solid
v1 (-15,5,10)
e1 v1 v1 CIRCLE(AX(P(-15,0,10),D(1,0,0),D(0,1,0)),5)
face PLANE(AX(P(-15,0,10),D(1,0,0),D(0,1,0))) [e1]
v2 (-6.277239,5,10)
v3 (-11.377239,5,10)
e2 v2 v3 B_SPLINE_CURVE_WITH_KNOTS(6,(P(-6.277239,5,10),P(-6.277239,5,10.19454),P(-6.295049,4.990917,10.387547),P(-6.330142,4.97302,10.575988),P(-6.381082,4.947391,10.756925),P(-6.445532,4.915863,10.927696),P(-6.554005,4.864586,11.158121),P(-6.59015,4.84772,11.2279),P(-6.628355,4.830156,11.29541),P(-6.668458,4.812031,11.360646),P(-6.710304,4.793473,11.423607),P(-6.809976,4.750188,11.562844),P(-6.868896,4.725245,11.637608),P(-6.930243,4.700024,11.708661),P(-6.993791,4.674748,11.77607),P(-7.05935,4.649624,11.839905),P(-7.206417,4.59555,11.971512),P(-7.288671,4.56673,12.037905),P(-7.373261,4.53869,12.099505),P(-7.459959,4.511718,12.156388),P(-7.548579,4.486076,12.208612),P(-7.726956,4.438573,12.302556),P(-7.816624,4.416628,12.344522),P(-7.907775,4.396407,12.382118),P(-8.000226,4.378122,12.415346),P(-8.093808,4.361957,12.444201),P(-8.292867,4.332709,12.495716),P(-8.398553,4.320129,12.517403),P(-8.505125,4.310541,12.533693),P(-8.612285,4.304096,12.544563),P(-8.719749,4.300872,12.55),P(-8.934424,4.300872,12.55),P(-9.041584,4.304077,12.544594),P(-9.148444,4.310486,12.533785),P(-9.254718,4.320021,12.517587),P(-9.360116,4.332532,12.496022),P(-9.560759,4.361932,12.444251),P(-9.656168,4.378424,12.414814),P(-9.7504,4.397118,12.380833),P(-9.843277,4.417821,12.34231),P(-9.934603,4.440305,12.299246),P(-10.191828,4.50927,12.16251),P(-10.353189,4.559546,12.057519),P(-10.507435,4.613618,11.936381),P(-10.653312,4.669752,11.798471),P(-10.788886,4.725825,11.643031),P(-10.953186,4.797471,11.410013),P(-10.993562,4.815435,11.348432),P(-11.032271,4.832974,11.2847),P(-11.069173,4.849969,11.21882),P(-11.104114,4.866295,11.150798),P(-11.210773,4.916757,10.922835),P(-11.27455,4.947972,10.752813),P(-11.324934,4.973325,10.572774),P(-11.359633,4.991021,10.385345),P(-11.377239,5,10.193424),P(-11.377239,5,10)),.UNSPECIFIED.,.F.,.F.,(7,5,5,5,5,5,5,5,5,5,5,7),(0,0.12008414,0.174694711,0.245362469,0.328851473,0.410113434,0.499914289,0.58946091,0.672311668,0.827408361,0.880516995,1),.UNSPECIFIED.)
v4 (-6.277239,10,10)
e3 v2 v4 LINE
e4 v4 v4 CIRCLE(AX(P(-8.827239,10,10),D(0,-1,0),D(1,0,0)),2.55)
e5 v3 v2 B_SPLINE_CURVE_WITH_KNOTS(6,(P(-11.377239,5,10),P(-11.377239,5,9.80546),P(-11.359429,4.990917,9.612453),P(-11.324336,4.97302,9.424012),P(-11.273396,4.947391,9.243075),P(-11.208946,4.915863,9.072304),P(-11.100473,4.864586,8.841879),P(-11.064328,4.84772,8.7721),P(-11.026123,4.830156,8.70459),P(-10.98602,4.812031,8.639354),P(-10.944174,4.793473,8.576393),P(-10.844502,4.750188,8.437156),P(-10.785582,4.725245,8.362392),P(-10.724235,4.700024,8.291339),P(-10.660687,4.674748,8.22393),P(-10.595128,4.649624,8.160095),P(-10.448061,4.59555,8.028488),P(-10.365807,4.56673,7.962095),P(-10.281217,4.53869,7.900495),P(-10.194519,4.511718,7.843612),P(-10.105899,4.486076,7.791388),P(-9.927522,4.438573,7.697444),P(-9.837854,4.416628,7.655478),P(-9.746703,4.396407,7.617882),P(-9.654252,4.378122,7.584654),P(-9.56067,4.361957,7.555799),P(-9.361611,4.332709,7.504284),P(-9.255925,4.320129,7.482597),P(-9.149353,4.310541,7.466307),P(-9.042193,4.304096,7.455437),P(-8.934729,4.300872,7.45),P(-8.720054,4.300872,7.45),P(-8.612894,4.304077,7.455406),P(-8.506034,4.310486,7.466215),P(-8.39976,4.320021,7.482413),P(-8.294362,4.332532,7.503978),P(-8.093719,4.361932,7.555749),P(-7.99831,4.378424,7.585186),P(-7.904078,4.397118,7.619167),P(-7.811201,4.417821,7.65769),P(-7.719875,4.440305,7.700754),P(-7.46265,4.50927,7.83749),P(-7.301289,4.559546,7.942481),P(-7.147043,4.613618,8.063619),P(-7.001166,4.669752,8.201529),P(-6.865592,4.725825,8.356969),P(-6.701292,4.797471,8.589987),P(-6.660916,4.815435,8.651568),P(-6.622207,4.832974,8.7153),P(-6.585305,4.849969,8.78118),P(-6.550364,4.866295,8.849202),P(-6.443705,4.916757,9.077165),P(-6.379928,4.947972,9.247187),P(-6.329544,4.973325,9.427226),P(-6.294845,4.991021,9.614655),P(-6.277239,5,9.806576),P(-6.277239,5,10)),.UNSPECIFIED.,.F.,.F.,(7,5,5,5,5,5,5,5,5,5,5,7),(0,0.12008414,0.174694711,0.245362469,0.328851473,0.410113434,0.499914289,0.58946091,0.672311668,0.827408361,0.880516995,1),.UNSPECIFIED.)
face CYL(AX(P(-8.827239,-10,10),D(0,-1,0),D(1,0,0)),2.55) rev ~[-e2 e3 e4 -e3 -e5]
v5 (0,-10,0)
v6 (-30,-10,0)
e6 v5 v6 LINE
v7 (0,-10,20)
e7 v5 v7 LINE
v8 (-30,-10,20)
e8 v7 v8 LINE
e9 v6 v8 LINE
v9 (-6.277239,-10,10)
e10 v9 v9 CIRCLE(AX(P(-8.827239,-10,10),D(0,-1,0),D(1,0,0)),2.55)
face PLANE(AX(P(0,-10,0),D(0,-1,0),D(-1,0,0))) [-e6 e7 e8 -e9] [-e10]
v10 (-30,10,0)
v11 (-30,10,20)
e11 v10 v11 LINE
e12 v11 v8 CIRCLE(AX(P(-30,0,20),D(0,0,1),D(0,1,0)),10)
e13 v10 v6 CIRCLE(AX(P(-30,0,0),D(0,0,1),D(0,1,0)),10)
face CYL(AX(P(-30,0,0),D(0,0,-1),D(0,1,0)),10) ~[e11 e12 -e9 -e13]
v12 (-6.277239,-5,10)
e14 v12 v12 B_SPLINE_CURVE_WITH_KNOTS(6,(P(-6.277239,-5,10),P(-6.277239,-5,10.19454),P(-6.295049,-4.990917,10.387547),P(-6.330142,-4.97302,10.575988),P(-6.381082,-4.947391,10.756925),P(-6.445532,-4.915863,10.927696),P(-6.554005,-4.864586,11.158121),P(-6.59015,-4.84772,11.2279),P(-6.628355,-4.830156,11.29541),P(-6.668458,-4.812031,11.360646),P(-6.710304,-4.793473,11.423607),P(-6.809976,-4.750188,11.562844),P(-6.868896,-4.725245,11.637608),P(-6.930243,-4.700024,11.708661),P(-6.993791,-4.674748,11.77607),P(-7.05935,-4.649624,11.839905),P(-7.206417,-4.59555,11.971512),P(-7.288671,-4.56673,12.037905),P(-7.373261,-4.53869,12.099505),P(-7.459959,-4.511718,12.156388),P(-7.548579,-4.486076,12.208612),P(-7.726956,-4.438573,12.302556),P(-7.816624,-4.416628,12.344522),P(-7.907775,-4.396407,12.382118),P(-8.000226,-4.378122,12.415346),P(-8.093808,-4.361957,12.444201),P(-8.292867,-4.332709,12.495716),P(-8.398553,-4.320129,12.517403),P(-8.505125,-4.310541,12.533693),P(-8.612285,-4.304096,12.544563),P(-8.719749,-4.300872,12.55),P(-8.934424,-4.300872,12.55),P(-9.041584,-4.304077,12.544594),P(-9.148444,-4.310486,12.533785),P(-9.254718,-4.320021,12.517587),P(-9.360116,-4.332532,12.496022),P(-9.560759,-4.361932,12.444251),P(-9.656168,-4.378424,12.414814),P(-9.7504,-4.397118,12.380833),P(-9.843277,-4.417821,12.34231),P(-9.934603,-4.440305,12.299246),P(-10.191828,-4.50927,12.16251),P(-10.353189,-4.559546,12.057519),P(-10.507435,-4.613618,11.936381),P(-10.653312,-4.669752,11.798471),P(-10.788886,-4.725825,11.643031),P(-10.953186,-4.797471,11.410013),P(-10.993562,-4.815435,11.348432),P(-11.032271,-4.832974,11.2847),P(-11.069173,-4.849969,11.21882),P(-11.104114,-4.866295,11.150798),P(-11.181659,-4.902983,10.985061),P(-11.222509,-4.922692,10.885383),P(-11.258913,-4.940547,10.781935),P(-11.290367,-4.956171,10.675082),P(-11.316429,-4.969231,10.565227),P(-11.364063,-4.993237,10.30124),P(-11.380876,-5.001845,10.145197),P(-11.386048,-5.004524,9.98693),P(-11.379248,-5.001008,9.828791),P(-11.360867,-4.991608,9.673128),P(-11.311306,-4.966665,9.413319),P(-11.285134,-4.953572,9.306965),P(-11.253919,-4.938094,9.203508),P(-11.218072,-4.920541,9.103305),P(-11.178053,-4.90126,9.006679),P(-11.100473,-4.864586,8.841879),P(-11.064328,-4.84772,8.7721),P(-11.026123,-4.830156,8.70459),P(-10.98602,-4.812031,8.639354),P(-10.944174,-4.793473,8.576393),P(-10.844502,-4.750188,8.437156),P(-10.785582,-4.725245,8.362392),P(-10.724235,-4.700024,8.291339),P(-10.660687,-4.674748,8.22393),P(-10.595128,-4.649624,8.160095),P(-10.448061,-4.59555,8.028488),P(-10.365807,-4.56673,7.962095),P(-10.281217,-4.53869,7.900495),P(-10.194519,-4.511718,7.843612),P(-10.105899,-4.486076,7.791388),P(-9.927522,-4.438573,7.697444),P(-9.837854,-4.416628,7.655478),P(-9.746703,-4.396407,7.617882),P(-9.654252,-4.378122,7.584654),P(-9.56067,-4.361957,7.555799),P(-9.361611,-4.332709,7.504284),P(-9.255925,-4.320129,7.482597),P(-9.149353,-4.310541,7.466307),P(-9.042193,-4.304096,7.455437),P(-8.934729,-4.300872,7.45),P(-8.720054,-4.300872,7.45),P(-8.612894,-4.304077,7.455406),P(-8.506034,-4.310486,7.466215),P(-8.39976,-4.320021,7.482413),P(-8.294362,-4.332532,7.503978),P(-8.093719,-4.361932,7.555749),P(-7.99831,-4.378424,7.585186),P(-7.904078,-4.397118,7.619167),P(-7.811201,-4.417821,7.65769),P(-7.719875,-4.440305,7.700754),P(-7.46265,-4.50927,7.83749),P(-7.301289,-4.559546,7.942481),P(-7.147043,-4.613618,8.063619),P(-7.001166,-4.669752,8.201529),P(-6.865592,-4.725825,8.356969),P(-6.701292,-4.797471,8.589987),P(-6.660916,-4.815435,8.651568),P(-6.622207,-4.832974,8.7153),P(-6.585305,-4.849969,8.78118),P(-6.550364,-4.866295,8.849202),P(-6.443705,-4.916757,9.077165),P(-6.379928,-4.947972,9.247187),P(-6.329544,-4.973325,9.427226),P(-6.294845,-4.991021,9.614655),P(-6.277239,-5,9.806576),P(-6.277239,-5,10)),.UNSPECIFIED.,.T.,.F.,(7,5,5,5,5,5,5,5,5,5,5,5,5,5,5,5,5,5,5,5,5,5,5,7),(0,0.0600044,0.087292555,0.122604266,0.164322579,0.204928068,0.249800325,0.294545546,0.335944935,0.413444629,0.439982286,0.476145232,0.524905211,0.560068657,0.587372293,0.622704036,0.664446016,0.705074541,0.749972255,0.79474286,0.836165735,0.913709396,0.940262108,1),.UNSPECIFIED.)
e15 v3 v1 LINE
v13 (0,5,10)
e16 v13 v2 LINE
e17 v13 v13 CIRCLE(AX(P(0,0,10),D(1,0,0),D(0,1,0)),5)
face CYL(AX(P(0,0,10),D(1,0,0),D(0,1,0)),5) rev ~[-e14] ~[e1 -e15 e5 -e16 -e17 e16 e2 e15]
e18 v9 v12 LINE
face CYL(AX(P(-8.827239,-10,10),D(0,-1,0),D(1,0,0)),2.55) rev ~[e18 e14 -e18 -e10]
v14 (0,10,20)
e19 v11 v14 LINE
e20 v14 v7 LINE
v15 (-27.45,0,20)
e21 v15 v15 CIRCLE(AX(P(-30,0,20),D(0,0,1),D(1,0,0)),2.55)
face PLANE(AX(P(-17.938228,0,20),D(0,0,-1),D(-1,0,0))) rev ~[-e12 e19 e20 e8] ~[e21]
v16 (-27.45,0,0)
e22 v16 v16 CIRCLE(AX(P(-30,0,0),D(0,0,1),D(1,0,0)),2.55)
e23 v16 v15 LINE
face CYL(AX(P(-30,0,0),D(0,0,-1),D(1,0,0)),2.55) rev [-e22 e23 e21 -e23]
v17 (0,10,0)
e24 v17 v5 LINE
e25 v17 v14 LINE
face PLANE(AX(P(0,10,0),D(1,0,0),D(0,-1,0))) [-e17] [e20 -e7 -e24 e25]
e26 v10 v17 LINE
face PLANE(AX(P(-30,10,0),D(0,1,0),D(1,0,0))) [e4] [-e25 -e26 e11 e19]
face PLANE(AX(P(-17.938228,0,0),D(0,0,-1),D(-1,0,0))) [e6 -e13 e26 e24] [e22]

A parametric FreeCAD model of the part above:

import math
import FreeCAD as App
import Part
import Sketcher
from FreeCAD import Vector

doc = App.newDocument("Part")
params = doc.addObject("Spreadsheet::Sheet", "Params")
for row, (alias, value) in enumerate([
    ("sketch1_radius", "10 mm"),
    ("sketch1_diameter", "5.1 mm"),
    ("sketch1_width", "30 mm"),
    ("pad1_length", "20 mm"),
    ("sketch2_diameter", "10 mm"),
    ("pocket1_length", "15 mm"),
    ("sketch3_diameter", "5.1 mm"),
], start=1):
    params.set(f"A{row}", alias)
    params.set(f"B{row}", "=" + value)
    params.setAlias(f"B{row}", alias)

body = doc.addObject("PartDesign::Body", "Body")

# Sketch on XY plane
sketch1 = doc.addObject("Sketcher::SketchObject", "Sketch")
body.addObject(sketch1)
sketch1.AttachmentSupport = (doc.XY_Plane, [""])
sketch1.MapMode = "FlatFace"
sketch1.addGeometry([
    Part.LineSegment(Vector(0, 10, 0), Vector(-30, 10, 0)),  # 0
    Part.ArcOfCircle(Part.Circle(Vector(-30, 0, 0), Vector(0, 0, 1), 10), math.radians(90), math.radians(270)),  # 1
    Part.LineSegment(Vector(-30, -10, 0), Vector(0, -10, 0)),  # 2
    Part.LineSegment(Vector(0, -10, 0), Vector(0, 10, 0)),  # 3
    Part.Circle(Vector(-30, 0, 0), Vector(0, 0, 1), 2.55),  # 4
], False)
sketch1.addConstraint([
    Sketcher.Constraint("Tangent", 0, 2, 1, 1),
    Sketcher.Constraint("Tangent", 1, 2, 2, 1),
    Sketcher.Constraint("Coincident", 2, 2, 3, 1),
    Sketcher.Constraint("Coincident", 3, 2, 0, 1),
    Sketcher.Constraint("Horizontal", 0),
    Sketcher.Constraint("Horizontal", 2),
    Sketcher.Constraint("Vertical", 3),
    Sketcher.Constraint("Coincident", 4, 3, 1, 3),
    Sketcher.Constraint("Symmetric", 2, 2, 3, 2, -1, 1),
    Sketcher.Constraint("Radius", 1, 10.0),
    Sketcher.Constraint("Diameter", 4, 5.1),
    Sketcher.Constraint("DistanceX", 0, 2, 0, 1, 30.0),
])
sketch1.setExpression("Constraints[9]", "Params.sketch1_radius")
sketch1.setExpression("Constraints[10]", "Params.sketch1_diameter")
sketch1.setExpression("Constraints[11]", "Params.sketch1_width")
pad1 = doc.addObject("PartDesign::Pad", "Pad")
body.addObject(pad1)
pad1.Profile = sketch1
pad1.setExpression("Length", "Params.pad1_length")

# Sketch on YZ plane
sketch2 = doc.addObject("Sketcher::SketchObject", "Sketch001")
body.addObject(sketch2)
sketch2.AttachmentSupport = (doc.YZ_Plane, [""])
sketch2.MapMode = "FlatFace"
sketch2.addGeometry(Part.Circle(Vector(0, 10, 0), Vector(0, 0, 1), 5), False)
sketch2.addConstraint([
    Sketcher.Constraint("PointOnObject", 0, 3, -2),
    Sketcher.Constraint("Diameter", 0, 10.0),
    Sketcher.Constraint("DistanceY", -1, 1, 0, 3, 10.0),
])
sketch2.setExpression("Constraints[1]", "Params.sketch2_diameter")
pocket1 = doc.addObject("PartDesign::Pocket", "Pocket")
body.addObject(pocket1)
pocket1.Profile = sketch2
pocket1.setExpression("Length", "Params.pocket1_length")

# Sketch on XZ plane
sketch3 = doc.addObject("Sketcher::SketchObject", "Sketch002")
body.addObject(sketch3)
sketch3.AttachmentSupport = (doc.XZ_Plane, [""])
sketch3.MapMode = "FlatFace"
sketch3.AttachmentOffset = App.Placement(Vector(0, 0, 10), App.Rotation())
sketch3.addGeometry(Part.Circle(Vector(-8.827239, 10, 0), Vector(0, 0, 1), 2.55), False)
sketch3.addConstraint([
    Sketcher.Constraint("Diameter", 0, 5.1),
    Sketcher.Constraint("DistanceY", -1, 1, 0, 3, 10.0),
    Sketcher.Constraint("DistanceX", 0, 3, -1, 1, 8.827239),
])
sketch3.setExpression("Constraints[0]", "Params.sketch3_diameter")
pocket2 = doc.addObject("PartDesign::Pocket", "Pocket001")
body.addObject(pocket2)
pocket2.Profile = sketch3
pocket2.Type = "ThroughAll"

doc.recompute()
